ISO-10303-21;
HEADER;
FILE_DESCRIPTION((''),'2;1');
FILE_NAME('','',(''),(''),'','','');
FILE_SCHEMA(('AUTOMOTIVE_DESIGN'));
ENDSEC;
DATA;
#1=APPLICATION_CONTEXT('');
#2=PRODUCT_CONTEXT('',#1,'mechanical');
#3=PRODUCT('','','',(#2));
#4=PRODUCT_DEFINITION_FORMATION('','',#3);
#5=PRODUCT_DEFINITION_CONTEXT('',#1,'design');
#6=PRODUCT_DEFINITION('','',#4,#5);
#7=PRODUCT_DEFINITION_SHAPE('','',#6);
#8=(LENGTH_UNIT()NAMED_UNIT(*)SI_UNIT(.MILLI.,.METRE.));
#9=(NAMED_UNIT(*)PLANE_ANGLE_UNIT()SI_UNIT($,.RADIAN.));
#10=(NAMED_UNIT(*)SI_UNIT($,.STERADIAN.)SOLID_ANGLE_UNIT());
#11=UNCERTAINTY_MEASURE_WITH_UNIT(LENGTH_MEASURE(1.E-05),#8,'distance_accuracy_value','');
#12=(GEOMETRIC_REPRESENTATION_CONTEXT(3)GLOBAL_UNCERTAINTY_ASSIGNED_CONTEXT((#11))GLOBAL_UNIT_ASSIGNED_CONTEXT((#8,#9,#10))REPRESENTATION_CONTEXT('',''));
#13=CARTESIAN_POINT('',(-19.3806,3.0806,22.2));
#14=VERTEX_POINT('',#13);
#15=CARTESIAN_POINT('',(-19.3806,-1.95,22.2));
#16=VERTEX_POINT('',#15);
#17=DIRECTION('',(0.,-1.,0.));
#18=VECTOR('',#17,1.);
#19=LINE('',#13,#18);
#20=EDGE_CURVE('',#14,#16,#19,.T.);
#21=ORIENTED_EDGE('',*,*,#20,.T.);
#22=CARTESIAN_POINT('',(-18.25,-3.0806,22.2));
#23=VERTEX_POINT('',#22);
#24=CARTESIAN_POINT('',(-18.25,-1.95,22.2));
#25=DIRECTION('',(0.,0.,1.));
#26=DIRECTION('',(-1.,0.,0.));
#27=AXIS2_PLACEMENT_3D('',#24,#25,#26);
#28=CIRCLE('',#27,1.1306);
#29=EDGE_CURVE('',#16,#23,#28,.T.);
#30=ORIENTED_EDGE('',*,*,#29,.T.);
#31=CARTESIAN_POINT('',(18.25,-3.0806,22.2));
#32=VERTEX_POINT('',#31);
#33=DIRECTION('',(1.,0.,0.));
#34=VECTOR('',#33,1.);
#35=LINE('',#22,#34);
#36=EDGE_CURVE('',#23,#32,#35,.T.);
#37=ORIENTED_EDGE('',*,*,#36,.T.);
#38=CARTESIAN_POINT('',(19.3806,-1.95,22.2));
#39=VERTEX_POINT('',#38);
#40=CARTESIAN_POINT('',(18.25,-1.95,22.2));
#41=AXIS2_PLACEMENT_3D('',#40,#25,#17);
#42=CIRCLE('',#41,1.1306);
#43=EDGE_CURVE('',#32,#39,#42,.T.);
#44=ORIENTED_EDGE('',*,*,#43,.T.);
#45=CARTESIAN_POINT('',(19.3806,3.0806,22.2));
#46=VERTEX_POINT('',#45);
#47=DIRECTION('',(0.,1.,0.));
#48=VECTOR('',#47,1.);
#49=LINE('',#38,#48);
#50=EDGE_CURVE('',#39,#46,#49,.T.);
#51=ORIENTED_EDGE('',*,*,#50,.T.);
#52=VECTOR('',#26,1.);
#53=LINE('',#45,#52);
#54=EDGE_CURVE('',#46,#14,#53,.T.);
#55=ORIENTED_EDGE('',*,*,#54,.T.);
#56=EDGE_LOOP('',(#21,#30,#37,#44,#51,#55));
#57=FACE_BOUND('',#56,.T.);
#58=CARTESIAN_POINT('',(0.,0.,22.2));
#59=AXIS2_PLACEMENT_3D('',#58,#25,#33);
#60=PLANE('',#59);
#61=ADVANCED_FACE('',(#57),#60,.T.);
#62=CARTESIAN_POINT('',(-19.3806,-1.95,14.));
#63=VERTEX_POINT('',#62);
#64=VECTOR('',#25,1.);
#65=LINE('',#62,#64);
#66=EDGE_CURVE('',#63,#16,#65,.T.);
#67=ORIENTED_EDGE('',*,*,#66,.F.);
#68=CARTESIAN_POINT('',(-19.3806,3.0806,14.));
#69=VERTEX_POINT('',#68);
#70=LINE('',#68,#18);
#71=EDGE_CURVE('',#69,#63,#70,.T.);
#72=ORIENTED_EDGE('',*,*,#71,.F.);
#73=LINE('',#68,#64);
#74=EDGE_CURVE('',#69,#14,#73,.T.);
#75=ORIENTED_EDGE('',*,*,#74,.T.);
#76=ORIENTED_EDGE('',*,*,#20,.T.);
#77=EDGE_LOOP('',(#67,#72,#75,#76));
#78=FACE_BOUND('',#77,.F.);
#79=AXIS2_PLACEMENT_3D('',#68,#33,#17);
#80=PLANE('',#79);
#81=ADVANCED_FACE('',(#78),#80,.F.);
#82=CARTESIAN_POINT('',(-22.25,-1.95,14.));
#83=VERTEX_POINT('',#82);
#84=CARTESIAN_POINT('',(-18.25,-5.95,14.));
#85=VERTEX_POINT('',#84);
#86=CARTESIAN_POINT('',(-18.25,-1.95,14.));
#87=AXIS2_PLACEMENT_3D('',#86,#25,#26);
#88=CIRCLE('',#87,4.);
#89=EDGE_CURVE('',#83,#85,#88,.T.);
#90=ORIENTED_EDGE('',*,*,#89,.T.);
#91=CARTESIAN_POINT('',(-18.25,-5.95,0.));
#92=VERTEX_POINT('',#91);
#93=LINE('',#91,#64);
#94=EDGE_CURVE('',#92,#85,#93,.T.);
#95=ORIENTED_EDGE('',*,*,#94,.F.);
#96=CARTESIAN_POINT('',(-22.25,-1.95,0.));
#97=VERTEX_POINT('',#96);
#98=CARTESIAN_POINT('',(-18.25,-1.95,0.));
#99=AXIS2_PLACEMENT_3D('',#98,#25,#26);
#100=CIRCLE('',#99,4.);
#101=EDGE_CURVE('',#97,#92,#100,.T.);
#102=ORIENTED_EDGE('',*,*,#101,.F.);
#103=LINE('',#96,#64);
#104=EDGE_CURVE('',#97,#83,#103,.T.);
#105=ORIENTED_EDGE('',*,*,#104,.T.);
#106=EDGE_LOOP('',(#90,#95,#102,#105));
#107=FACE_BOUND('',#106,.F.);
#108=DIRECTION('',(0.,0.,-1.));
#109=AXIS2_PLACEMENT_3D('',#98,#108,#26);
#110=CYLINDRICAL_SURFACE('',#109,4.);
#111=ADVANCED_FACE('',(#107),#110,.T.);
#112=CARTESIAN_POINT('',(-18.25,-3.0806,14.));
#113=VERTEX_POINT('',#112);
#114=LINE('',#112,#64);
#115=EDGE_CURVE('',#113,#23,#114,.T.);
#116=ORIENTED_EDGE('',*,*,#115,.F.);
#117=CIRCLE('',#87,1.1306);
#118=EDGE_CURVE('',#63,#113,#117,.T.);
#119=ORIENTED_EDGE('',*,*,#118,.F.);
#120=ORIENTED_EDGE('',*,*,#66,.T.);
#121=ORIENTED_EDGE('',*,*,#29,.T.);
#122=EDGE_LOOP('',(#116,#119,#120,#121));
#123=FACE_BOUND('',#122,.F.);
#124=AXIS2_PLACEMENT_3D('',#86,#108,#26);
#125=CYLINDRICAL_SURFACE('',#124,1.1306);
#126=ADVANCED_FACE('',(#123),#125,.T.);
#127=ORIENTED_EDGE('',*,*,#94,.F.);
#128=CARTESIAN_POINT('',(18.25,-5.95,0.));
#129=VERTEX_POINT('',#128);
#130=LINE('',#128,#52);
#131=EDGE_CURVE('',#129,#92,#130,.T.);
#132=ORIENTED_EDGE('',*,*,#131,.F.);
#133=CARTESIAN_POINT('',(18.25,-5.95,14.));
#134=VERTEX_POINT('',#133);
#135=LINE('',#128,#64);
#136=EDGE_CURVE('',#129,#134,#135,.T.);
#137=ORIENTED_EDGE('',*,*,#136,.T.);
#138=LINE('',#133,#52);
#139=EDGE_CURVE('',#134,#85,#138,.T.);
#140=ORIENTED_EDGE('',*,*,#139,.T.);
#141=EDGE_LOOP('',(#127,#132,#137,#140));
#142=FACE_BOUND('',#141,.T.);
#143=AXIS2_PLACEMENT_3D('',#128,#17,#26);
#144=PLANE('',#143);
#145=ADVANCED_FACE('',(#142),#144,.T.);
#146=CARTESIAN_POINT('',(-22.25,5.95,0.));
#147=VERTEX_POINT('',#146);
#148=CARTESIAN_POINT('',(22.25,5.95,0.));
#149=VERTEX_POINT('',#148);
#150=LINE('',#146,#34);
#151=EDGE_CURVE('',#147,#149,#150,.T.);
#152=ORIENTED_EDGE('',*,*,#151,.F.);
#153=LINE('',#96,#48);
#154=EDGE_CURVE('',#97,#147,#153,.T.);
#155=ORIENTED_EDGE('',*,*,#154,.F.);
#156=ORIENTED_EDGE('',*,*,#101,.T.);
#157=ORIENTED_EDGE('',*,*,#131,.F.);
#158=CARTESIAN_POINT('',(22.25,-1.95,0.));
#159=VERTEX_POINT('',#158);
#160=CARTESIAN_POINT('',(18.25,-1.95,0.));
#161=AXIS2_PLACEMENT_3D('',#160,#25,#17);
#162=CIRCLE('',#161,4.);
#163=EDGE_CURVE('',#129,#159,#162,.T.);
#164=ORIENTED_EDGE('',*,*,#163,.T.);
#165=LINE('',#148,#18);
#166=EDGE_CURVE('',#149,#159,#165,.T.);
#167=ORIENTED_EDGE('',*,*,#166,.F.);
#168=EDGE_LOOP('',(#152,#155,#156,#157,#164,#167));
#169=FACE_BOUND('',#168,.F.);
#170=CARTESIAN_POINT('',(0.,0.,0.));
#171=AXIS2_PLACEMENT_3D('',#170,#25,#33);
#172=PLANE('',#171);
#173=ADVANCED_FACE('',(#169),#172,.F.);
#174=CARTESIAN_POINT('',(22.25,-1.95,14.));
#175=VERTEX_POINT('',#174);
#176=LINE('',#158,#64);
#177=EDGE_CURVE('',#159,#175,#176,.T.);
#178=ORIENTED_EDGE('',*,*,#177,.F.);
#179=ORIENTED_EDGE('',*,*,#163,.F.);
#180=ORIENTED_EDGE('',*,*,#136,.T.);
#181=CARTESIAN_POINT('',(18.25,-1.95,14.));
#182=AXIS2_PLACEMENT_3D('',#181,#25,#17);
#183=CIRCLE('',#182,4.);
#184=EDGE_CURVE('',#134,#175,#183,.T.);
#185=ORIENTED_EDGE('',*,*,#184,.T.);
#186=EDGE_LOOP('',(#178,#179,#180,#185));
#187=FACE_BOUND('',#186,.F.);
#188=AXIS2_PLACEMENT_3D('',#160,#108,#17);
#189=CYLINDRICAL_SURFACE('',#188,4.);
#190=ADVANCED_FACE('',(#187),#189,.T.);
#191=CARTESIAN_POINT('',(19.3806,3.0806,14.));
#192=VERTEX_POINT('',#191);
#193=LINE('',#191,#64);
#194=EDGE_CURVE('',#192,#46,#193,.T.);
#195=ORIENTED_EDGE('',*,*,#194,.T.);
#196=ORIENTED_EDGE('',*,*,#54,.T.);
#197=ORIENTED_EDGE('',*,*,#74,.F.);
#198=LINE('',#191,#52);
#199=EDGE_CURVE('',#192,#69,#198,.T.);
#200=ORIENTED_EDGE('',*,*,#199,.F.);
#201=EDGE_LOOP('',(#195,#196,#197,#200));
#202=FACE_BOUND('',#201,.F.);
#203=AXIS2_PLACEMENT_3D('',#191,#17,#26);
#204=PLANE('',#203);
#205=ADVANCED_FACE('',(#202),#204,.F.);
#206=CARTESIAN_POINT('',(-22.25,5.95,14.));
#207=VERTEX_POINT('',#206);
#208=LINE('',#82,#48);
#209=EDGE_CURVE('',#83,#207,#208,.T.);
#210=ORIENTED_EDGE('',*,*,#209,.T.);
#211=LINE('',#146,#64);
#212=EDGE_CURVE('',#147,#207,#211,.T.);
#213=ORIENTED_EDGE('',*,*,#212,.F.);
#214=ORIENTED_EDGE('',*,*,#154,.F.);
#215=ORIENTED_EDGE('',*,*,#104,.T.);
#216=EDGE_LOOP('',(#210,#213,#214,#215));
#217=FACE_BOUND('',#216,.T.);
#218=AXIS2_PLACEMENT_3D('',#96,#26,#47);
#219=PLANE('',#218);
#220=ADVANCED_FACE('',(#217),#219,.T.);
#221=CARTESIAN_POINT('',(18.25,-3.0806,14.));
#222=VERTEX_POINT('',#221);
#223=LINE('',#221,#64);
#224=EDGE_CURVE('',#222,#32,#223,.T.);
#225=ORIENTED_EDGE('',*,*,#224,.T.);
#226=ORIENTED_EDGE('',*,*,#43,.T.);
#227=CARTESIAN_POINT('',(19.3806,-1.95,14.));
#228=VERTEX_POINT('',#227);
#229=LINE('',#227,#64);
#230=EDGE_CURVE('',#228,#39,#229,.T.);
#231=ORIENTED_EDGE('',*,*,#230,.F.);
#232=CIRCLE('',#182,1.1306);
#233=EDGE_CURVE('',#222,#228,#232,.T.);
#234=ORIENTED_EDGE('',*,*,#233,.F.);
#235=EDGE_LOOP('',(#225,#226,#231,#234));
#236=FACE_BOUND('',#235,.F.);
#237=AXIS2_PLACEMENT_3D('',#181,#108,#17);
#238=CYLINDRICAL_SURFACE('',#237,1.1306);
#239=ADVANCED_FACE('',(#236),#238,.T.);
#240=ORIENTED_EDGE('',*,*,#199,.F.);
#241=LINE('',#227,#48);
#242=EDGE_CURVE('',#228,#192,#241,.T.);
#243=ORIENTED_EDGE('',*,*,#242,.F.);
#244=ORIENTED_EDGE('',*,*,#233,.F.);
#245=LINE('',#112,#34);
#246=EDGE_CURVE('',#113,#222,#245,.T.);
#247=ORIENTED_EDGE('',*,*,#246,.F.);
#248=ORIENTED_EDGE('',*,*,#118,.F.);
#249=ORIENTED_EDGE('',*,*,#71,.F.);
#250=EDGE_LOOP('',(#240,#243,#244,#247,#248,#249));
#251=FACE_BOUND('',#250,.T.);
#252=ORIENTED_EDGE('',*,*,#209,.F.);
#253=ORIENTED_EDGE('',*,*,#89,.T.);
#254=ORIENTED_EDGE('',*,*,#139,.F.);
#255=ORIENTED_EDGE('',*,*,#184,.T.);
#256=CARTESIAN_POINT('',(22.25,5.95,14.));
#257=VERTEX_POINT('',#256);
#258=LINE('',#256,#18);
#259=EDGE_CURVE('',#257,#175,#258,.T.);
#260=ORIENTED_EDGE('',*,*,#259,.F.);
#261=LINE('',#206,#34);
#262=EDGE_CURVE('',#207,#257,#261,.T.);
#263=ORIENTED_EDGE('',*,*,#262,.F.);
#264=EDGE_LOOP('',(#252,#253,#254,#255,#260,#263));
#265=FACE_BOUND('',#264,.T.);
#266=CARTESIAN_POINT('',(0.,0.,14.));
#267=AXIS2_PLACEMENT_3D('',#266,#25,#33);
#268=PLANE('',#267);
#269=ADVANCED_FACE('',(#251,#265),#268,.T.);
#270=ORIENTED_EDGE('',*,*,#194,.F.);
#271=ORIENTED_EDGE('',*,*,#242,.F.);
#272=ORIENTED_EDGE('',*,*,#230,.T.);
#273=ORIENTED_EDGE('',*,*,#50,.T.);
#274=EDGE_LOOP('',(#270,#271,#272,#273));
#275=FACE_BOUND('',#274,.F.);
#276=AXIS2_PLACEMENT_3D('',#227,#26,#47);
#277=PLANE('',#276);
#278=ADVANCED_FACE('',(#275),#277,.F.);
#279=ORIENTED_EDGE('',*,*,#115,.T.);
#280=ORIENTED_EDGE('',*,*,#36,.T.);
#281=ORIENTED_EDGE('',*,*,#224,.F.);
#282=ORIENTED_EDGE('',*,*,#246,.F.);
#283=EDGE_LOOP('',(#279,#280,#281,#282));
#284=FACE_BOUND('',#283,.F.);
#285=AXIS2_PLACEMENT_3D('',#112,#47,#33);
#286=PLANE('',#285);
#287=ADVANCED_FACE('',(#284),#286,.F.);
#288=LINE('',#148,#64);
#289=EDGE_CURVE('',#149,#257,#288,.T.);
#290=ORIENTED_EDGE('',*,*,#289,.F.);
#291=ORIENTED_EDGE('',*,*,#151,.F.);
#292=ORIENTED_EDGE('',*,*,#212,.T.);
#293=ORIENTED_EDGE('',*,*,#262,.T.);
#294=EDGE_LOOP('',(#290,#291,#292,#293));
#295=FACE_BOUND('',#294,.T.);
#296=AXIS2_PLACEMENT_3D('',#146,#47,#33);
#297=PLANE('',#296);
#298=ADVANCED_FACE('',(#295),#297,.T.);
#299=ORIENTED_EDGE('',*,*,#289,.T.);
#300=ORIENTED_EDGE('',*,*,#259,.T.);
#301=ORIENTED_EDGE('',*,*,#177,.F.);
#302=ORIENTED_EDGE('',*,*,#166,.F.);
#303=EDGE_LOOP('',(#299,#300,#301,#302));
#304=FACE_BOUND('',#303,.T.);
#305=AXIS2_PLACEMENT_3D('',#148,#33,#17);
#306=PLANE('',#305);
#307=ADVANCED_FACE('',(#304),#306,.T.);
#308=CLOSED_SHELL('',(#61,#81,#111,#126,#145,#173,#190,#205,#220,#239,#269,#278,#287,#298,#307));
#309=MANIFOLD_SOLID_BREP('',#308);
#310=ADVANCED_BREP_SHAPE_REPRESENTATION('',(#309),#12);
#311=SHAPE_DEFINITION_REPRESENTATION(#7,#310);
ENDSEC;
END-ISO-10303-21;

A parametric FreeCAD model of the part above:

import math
import FreeCAD as App
import Part
import Sketcher

V = App.Vector

doc = App.newDocument("Part")
body = doc.addObject("PartDesign::Body", "Body")

# Sketch on XY plane
sketch1 = body.newObject("Sketcher::SketchObject", "Sketch")
sketch1.AttachmentSupport = (doc.getObject("XY_Plane"), [""])
sketch1.MapMode = "FlatFace"
sketch1.addGeometry([
    Part.LineSegment(V(22.25, -1.95, 0), V(22.25, 5.95, 0)),  # 0
    Part.LineSegment(V(22.25, 5.95, 0), V(-22.25, 5.95, 0)),  # 1
    Part.LineSegment(V(-22.25, 5.95, 0), V(-22.25, -1.95, 0)),  # 2
    Part.ArcOfCircle(Part.Circle(V(-18.25, -1.95, 0), V(0, 0, 1), 4), math.radians(180), math.radians(270)),  # 3
    Part.LineSegment(V(-18.25, -5.95, 0), V(18.25, -5.95, 0)),  # 4
    Part.ArcOfCircle(Part.Circle(V(18.25, -1.95, 0), V(0, 0, 1), 4), math.radians(-90), math.radians(0)),  # 5
], False)
sketch1.addConstraint([
    Sketcher.Constraint("Coincident", 0, 2, 1, 1),
    Sketcher.Constraint("Coincident", 1, 2, 2, 1),
    Sketcher.Constraint("Tangent", 2, 2, 3, 1),
    Sketcher.Constraint("Tangent", 3, 2, 4, 1),
    Sketcher.Constraint("Tangent", 4, 2, 5, 1),
    Sketcher.Constraint("Tangent", 5, 2, 0, 1),
    Sketcher.Constraint("Vertical", 0),
    Sketcher.Constraint("Horizontal", 1),
    Sketcher.Constraint("Vertical", 2),
    Sketcher.Constraint("Horizontal", 4),
    Sketcher.Constraint("Equal", 3, 5),
    Sketcher.Constraint("Radius", 3, 4.0),
    Sketcher.Constraint("DistanceX", 1, 2, 1, 1, 44.5),
    Sketcher.Constraint("DistanceY", 3, 2, 1, 2, 11.9),
    Sketcher.Constraint("DistanceX", 3, 3, -1, 1, 18.25),
    Sketcher.Constraint("DistanceY", 3, 3, -1, 1, 1.95),
])
pad1 = body.newObject("PartDesign::Pad", "Pad")
pad1.Profile = sketch1
pad1.Length = 14

# Sketch on XY plane
sketch2 = body.newObject("Sketcher::SketchObject", "Sketch001")
sketch2.AttachmentSupport = (doc.getObject("XY_Plane"), [""])
sketch2.MapMode = "FlatFace"
sketch2.AttachmentOffset = App.Placement(V(0, 0, 14), App.Rotation())
sketch2.addGeometry([
    Part.LineSegment(V(19.3806, 3.0806, 0), V(-19.3806, 3.0806, 0)),  # 0
    Part.LineSegment(V(-19.3806, 3.0806, 0), V(-19.3806, -1.95, 0)),  # 1
    Part.ArcOfCircle(Part.Circle(V(-18.25, -1.95, 0), V(0, 0, 1), 1.1306), math.radians(180), math.radians(270)),  # 2
    Part.LineSegment(V(-18.25, -3.0806, 0), V(18.25, -3.0806, 0)),  # 3
    Part.ArcOfCircle(Part.Circle(V(18.25, -1.95, 0), V(0, 0, 1), 1.1306), math.radians(-90), math.radians(0)),  # 4
    Part.LineSegment(V(19.3806, -1.95, 0), V(19.3806, 3.0806, 0)),  # 5
], False)
sketch2.addConstraint([
    Sketcher.Constraint("Coincident", 0, 2, 1, 1),
    Sketcher.Constraint("Tangent", 1, 2, 2, 1),
    Sketcher.Constraint("Tangent", 2, 2, 3, 1),
    Sketcher.Constraint("Tangent", 3, 2, 4, 1),
    Sketcher.Constraint("Tangent", 4, 2, 5, 1),
    Sketcher.Constraint("Coincident", 5, 2, 0, 1),
    Sketcher.Constraint("Horizontal", 0),
    Sketcher.Constraint("Vertical", 1),
    Sketcher.Constraint("Horizontal", 3),
    Sketcher.Constraint("Vertical", 5),
    Sketcher.Constraint("Equal", 2, 4),
    Sketcher.Constraint("DistanceX", 3, 1, 3, 2, 36.5),
    Sketcher.Constraint("Radius", 2, 1.1306),
    Sketcher.Constraint("DistanceX", 2, 3, -1, 1, 18.25),
    Sketcher.Constraint("DistanceY", 2, 3, -1, 1, 1.95),
    Sketcher.Constraint("DistanceY", 1, 2, 1, 1, 5.0306),
])
pad2 = body.newObject("PartDesign::Pad", "Pad001")
pad2.Profile = sketch2
pad2.Length = 8.2

doc.recompute()
